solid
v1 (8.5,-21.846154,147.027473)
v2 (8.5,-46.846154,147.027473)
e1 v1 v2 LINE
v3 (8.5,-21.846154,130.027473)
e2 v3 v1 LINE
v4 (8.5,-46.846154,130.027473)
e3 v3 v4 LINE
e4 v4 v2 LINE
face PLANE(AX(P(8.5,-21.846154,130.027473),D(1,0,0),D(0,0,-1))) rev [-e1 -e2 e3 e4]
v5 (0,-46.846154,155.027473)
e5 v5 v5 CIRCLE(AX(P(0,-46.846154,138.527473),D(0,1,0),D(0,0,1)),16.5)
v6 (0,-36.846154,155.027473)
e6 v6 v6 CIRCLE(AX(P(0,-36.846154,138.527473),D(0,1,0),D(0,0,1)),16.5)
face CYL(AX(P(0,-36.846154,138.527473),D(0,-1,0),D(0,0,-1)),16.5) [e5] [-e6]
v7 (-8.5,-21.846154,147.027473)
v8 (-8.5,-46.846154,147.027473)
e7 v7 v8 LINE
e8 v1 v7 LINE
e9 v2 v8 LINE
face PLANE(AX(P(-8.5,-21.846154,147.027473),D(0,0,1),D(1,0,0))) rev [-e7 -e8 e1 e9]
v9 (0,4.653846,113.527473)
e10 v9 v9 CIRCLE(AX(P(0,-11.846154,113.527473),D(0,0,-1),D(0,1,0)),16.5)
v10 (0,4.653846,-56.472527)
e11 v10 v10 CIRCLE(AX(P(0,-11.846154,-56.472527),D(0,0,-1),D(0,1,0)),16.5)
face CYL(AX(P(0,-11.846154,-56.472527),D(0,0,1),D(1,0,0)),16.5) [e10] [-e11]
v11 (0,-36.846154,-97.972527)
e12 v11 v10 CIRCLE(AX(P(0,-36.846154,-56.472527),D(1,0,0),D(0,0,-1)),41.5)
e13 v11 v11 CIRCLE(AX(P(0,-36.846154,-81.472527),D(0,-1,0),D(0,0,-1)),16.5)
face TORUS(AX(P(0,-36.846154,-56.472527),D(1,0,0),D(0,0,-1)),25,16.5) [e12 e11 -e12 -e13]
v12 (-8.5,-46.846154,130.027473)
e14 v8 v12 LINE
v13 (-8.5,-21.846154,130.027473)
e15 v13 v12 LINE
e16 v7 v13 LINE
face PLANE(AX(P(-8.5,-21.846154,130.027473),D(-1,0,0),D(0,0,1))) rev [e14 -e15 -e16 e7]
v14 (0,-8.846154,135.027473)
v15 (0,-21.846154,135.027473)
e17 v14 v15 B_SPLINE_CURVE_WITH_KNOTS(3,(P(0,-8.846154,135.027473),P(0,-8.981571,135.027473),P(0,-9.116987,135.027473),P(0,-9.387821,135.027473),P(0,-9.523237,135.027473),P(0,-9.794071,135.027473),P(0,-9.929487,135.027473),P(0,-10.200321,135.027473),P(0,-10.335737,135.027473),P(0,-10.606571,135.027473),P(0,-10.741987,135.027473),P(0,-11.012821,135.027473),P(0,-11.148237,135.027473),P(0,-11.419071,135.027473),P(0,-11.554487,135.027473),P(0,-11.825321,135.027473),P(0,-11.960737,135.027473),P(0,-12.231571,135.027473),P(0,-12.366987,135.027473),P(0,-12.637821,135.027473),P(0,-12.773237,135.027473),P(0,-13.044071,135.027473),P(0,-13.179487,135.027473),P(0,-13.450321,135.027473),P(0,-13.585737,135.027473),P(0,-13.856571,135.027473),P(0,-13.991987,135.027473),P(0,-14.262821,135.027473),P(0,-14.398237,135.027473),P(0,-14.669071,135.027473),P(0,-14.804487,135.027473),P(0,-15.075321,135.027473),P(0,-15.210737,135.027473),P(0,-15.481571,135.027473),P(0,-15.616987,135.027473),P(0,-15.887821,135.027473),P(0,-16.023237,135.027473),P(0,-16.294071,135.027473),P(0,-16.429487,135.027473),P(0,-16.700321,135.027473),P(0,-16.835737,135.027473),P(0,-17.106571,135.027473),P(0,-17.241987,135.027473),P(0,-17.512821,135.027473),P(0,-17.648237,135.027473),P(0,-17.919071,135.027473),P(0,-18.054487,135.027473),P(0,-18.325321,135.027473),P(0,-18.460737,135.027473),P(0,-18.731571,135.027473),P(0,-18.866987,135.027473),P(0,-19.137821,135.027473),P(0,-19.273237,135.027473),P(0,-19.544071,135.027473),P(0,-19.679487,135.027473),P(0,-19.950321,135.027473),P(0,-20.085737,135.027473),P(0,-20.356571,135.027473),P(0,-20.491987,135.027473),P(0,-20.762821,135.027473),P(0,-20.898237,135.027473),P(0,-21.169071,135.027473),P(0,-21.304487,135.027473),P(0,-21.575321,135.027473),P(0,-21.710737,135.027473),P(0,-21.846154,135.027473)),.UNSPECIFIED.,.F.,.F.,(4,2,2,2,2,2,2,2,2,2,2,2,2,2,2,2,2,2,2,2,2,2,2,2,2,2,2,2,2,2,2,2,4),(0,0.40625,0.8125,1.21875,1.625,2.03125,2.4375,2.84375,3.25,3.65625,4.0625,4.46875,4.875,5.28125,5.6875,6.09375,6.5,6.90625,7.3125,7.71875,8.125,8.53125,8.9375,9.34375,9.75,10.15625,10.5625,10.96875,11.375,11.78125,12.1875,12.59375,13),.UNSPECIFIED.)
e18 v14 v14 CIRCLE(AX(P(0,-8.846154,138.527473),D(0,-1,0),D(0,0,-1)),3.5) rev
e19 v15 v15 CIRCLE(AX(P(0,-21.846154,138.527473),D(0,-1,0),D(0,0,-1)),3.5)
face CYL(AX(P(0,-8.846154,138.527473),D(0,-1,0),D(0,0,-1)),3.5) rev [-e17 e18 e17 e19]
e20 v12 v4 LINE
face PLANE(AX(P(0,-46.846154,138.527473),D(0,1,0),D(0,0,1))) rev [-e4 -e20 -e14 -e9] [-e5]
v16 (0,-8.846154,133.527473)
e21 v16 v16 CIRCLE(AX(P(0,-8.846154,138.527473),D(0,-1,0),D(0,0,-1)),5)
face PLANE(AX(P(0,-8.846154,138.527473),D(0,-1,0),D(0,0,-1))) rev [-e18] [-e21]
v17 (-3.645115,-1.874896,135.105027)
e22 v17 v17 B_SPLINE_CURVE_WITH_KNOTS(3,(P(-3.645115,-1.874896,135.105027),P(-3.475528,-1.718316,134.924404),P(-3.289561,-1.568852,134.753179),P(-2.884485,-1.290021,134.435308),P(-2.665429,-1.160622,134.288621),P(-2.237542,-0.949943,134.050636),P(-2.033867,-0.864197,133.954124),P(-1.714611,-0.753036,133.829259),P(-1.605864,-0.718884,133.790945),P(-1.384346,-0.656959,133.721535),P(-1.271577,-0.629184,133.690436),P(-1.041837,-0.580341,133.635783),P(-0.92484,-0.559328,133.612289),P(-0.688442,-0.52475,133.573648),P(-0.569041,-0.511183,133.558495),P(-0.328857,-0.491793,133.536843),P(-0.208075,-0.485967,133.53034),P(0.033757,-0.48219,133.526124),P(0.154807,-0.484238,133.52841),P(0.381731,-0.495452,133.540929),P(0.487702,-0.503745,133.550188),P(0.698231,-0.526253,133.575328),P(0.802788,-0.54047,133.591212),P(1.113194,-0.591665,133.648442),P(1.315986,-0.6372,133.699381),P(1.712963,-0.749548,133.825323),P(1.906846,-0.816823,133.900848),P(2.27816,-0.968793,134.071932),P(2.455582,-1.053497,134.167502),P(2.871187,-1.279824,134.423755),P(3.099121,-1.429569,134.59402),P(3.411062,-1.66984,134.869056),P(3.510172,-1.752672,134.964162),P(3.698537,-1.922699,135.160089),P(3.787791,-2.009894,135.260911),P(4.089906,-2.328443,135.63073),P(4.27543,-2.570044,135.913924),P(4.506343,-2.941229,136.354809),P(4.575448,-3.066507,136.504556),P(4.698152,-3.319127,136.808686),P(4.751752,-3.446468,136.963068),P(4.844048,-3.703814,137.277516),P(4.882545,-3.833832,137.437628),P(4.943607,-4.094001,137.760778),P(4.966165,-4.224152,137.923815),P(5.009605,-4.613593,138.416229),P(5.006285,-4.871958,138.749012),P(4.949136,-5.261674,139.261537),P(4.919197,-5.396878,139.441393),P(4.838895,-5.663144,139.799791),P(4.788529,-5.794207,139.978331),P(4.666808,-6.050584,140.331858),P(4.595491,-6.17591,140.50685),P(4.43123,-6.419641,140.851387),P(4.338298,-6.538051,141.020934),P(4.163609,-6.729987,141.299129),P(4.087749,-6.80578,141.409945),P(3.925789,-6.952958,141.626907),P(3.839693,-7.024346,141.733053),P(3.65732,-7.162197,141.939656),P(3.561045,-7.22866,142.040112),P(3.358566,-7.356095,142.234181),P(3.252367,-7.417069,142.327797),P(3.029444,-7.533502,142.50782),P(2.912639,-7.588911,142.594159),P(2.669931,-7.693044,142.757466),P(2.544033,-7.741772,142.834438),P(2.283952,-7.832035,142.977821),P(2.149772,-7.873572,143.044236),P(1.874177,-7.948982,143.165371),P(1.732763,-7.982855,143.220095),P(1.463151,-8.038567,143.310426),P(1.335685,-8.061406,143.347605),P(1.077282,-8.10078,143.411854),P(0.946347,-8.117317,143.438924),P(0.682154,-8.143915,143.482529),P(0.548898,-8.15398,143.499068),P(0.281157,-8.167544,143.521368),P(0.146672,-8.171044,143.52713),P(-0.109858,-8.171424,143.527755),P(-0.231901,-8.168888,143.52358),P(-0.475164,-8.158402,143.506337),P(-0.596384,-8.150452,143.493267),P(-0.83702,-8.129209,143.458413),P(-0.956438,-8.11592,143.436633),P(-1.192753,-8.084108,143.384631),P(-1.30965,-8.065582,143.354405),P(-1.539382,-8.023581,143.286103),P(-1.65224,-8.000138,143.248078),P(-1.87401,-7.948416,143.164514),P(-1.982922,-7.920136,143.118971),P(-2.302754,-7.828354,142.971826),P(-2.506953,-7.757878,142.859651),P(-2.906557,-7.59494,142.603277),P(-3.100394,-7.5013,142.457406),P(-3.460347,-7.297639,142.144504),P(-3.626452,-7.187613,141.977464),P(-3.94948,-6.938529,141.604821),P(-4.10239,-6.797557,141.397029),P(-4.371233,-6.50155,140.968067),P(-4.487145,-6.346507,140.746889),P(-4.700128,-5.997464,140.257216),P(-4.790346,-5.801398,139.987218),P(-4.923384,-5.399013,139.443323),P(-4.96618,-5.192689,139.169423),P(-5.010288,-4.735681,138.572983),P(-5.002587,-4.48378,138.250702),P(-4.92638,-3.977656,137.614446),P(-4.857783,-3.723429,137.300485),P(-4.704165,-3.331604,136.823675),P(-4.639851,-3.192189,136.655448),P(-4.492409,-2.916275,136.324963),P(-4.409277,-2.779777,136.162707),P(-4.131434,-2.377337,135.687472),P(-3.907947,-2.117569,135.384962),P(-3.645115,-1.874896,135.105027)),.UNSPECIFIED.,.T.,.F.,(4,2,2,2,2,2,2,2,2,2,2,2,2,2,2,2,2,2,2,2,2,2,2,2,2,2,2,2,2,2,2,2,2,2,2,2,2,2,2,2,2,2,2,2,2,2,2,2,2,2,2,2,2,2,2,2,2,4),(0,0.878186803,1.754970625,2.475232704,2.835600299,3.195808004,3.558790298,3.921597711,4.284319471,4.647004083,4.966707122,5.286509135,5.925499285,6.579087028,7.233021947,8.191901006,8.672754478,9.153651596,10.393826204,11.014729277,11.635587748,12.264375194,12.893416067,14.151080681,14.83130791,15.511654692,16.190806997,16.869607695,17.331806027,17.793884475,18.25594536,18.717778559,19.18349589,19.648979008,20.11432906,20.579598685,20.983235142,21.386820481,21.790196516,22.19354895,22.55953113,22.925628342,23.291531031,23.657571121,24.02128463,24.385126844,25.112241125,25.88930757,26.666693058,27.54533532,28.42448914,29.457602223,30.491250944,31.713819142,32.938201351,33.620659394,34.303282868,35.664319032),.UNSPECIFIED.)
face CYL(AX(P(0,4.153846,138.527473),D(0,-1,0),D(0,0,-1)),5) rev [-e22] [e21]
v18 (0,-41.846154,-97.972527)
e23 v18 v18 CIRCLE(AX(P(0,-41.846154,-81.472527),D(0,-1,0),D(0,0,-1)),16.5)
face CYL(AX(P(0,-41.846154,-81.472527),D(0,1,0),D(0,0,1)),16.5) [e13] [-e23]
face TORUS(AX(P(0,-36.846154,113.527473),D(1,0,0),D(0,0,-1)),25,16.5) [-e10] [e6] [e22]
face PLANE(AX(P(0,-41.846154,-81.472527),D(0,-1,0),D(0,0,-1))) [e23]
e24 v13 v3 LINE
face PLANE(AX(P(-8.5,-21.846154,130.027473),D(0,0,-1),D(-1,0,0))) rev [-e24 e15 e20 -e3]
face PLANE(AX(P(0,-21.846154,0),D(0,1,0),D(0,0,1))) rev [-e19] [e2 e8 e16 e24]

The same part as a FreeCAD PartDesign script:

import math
import FreeCAD as App
import Part
import Sketcher
Q = App.Units.Quantity

doc = App.newDocument("Part")
body = doc.addObject("PartDesign::Body", "Body")

sketch1 = body.newObject("Sketcher::SketchObject", "Sketch")
sketch1.AttachmentSupport = (doc.getObject("XZ_Plane"), [""])
sketch1.MapMode = "FlatFace"
sketch1.AttachmentOffset = App.Placement(App.Vector(0, 0, 41.846154), App.Rotation())
sketch1.addGeometry(Part.Circle(App.Vector(0, -81, 0), App.Vector(0, 0, 1), 16), False)
sketch1.addConstraint([
    Sketcher.Constraint("PointOnObject", 0, 3, -2),
    Sketcher.Constraint("Diameter", 0, Q("33 mm")),
    Sketcher.Constraint("DistanceY", 0, 3, -1, 1, Q("81.472527 mm")),
])

sketch2 = body.newObject("Sketcher::SketchObject", "Sketch001")
sketch2.AttachmentSupport = (doc.getObject("YZ_Plane"), [""])
sketch2.MapMode = "FlatFace"
sketch2.addGeometry([
    Part.LineSegment(App.Vector(-42, -81, 0), App.Vector(-37, -81, 0)),
    Part.ArcOfCircle(Part.Circle(App.Vector(-37, -56, 0), App.Vector(0, 0, 1), 25), math.radians(-90), math.radians(0)),
    Part.LineSegment(App.Vector(-12, -56, 0), App.Vector(-12, 114, 0)),
    Part.ArcOfCircle(Part.Circle(App.Vector(-37, 114, 0), App.Vector(0, 0, 1), 25), math.radians(0), math.radians(90)),
    Part.LineSegment(App.Vector(-37, 139, 0), App.Vector(-47, 139, 0)),
], False)
sketch2.addConstraint([
    Sketcher.Constraint("Tangent", 0, 2, 1, 1),
    Sketcher.Constraint("Tangent", 1, 2, 2, 1),
    Sketcher.Constraint("Tangent", 2, 2, 3, 1),
    Sketcher.Constraint("Tangent", 3, 2, 4, 1),
    Sketcher.Constraint("Horizontal", 0),
    Sketcher.Constraint("Vertical", 2),
    Sketcher.Constraint("Horizontal", 4),
    Sketcher.Constraint("Equal", 1, 3),
    Sketcher.Constraint("Radius", 1, Q("25 mm")),
    Sketcher.Constraint("DistanceX", 0, 1, 0, 2, Q("5 mm")),
    Sketcher.Constraint("DistanceX", 4, 2, 4, 1, Q("10 mm")),
    Sketcher.Constraint("DistanceY", 2, 1, 2, 2, Q("170 mm")),
    Sketcher.Constraint("DistanceX", 1, 3, -1, 1, Q("36.846154 mm")),
    Sketcher.Constraint("DistanceY", 1, 3, -1, 1, Q("56.472527 mm")),
])
doc.recompute()

additivepipe = body.newObject("PartDesign::AdditivePipe", "AdditivePipe")
additivepipe.Profile = sketch1
additivepipe.Spine = (sketch2, ["Edge1", "Edge2", "Edge3", "Edge4", "Edge5"])

sketch3 = body.newObject("Sketcher::SketchObject", "Sketch002")
sketch3.AttachmentSupport = (doc.getObject("XZ_Plane"), [""])
sketch3.MapMode = "FlatFace"
sketch3.AttachmentOffset = App.Placement(App.Vector(0, 0, 46.846154), App.Rotation())
sketch3.addGeometry([
    Part.LineSegment(App.Vector(-8, 147, 0), App.Vector(-8, 130, 0)),
    Part.LineSegment(App.Vector(-8, 130, 0), App.Vector(8, 130, 0)),
    Part.LineSegment(App.Vector(8, 130, 0), App.Vector(8, 147, 0)),
    Part.LineSegment(App.Vector(8, 147, 0), App.Vector(-8, 147, 0)),
], False)
sketch3.addConstraint([
    Sketcher.Constraint("Coincident", 0, 2, 1, 1),
    Sketcher.Constraint("Coincident", 1, 2, 2, 1),
    Sketcher.Constraint("Coincident", 2, 2, 3, 1),
    Sketcher.Constraint("Coincident", 3, 2, 0, 1),
    Sketcher.Constraint("Vertical", 0),
    Sketcher.Constraint("Horizontal", 1),
    Sketcher.Constraint("Vertical", 2),
    Sketcher.Constraint("Horizontal", 3),
    Sketcher.Constraint("Equal", 3, 0),
    Sketcher.Constraint("DistanceX", 1, 1, 1, 2, Q("17 mm")),
    Sketcher.Constraint("DistanceX", 0, 2, -1, 1, Q("8.5 mm")),
    Sketcher.Constraint("DistanceY", -1, 1, 0, 2, Q("130.027473 mm")),
])
pocket1 = body.newObject("PartDesign::Pocket", "Pocket")
pocket1.Profile = sketch3
pocket1.Length = 25

sketch4 = body.newObject("Sketcher::SketchObject", "Sketch003")
sketch4.AttachmentSupport = (doc.getObject("XZ_Plane"), [""])
sketch4.MapMode = "FlatFace"
sketch4.AttachmentOffset = App.Placement(App.Vector(0, 0, 21.846154), App.Rotation())
sketch4.addGeometry(Part.Circle(App.Vector(0, 138.5, 0), App.Vector(0, 0, 1), 3.5), False)
sketch4.addConstraint([
    Sketcher.Constraint("PointOnObject", 0, 3, -2),
    Sketcher.Constraint("Diameter", 0, Q("7 mm")),
    Sketcher.Constraint("DistanceY", -1, 1, 0, 3, Q("138.527473 mm")),
])
pocket2 = body.newObject("PartDesign::Pocket", "Pocket001")
pocket2.Profile = sketch4
pocket2.Length = 13

sketch5 = body.newObject("Sketcher::SketchObject", "Sketch004")
sketch5.AttachmentSupport = (doc.getObject("XZ_Plane"), [""])
sketch5.MapMode = "FlatFace"
sketch5.AttachmentOffset = App.Placement(App.Vector(0, 0, 8.846154), App.Rotation())
sketch5.addGeometry(Part.Circle(App.Vector(0, 139, 0), App.Vector(0, 0, 1), 5), False)
sketch5.addConstraint([
    Sketcher.Constraint("PointOnObject", 0, 3, -2),
    Sketcher.Constraint("Diameter", 0, Q("10 mm")),
    Sketcher.Constraint("DistanceY", -1, 1, 0, 3, Q("138.527473 mm")),
])
pocket3 = body.newObject("PartDesign::Pocket", "Pocket002")
pocket3.Profile = sketch5
pocket3.Length = 13

doc.recompute()
